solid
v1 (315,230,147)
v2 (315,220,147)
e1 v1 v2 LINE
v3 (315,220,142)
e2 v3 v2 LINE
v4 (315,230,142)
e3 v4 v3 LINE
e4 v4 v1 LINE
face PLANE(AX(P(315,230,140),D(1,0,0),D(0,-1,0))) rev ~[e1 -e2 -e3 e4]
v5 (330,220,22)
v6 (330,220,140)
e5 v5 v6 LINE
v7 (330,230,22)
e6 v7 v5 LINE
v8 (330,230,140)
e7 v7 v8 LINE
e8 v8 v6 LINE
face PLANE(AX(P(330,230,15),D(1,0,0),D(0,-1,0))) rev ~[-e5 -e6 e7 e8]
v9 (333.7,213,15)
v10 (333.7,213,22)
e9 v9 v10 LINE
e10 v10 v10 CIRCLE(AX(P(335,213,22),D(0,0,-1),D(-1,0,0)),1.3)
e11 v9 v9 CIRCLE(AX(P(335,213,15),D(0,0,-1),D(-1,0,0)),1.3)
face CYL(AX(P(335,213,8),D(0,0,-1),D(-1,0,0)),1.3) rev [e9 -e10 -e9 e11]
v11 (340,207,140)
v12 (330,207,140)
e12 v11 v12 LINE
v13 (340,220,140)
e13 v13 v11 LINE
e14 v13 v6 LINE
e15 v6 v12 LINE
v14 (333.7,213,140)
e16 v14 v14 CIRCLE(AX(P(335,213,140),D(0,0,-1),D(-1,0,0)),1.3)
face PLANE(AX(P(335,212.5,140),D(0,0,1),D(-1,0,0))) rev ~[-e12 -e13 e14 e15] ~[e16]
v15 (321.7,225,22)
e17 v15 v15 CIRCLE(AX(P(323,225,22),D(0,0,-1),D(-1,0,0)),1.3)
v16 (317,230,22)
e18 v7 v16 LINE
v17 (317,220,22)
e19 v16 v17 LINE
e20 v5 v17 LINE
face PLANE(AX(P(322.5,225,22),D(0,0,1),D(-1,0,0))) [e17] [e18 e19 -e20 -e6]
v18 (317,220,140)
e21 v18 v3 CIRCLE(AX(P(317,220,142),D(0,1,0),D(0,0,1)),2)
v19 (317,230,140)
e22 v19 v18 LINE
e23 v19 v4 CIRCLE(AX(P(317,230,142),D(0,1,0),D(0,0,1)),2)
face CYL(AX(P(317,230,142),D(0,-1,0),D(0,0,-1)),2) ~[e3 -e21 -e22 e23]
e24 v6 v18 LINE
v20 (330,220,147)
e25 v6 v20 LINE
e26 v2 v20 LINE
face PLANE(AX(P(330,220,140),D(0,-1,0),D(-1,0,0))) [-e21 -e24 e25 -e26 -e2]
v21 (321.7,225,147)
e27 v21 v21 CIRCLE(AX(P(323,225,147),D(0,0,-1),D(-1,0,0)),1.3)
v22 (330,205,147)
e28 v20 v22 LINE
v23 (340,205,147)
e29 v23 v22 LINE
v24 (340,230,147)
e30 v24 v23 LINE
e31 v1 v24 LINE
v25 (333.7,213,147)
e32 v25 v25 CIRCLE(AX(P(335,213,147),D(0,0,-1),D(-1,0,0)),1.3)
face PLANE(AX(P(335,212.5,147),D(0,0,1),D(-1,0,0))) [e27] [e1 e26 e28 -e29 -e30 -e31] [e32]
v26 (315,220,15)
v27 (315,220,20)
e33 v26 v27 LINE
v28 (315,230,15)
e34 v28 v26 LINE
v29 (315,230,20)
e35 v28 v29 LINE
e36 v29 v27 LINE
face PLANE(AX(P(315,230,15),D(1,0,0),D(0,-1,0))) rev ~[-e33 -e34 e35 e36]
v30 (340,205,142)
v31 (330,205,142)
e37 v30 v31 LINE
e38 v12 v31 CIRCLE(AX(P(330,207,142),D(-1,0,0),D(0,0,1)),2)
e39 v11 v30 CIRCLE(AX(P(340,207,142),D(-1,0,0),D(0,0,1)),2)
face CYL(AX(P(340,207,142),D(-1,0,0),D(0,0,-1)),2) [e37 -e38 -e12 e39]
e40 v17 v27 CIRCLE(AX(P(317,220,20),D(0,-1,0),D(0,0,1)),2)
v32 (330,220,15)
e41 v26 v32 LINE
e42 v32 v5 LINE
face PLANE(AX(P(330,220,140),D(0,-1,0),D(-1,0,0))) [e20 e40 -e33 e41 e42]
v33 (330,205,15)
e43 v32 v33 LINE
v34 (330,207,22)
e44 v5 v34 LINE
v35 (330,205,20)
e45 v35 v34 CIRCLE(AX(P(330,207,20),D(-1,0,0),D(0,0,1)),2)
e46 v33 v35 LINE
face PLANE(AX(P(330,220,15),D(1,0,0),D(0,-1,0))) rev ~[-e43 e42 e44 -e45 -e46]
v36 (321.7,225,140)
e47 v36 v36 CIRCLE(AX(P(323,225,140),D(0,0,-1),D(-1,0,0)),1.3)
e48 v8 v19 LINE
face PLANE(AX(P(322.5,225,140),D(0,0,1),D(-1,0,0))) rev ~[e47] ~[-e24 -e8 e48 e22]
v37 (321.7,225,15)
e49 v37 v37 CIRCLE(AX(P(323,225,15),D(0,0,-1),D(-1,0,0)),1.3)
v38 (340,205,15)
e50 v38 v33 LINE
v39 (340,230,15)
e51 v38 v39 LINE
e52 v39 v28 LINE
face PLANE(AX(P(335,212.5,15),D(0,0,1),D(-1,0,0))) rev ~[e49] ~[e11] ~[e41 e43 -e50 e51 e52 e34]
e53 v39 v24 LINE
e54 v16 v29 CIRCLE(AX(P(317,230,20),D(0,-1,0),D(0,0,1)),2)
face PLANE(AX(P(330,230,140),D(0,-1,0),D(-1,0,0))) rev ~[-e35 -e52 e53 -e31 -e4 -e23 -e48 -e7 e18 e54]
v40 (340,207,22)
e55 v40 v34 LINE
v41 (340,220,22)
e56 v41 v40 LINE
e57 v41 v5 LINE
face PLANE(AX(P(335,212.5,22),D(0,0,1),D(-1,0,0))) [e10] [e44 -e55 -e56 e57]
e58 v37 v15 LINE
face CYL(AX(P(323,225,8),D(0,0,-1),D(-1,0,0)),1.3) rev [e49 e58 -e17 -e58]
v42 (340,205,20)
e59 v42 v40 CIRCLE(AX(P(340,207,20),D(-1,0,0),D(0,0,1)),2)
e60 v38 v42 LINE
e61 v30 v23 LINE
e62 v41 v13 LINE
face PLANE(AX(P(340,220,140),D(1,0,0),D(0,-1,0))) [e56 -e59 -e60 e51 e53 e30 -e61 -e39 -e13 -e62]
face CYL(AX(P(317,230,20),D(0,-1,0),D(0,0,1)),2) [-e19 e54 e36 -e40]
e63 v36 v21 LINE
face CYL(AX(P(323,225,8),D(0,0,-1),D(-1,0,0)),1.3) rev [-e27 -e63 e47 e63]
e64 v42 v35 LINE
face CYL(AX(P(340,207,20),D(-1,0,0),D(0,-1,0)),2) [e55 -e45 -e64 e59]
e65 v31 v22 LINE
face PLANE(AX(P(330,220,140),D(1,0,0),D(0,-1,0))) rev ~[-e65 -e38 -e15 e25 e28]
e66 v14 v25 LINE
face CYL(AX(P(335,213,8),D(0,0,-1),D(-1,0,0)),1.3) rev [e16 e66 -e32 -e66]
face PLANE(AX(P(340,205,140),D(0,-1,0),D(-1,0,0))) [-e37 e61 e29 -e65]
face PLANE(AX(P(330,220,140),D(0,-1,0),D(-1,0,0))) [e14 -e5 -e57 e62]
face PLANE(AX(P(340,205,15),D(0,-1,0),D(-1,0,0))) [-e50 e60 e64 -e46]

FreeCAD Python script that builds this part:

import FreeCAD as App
import Part
import Sketcher


def edges_at(feature, points):
    """Names of the edges that pass closest to the given points."""
    edges = feature.Shape.Edges
    near = lambda p: min(range(len(edges)), key=lambda i: edges[i].distToShape(Part.Vertex(*p))[0])
    return sorted({f"Edge{near(p) + 1}" for p in points})

doc = App.newDocument("Part")
body = doc.addObject("PartDesign::Body", "Body")

# Sketch on XY plane
sketch1 = body.newObject("Sketcher::SketchObject", "Sketch")
sketch1.AttachmentSupport = (doc.getObject("XY_Plane"), [""])
sketch1.MapMode = "FlatFace"
sketch1.AttachmentOffset = App.Placement(App.Vector(0, 0, 8), App.Rotation())
sketch1.addGeometry(Part.Circle(App.Vector(5, 17, 0), App.Vector(0, 0, 1), 1.3), False)
sketch1.addConstraint([
    Sketcher.Constraint("Diameter", 0, 2.6),
    Sketcher.Constraint("DistanceX", -1, 1, 0, 3, 5.0),
    Sketcher.Constraint("DistanceY", -1, 1, 0, 3, 17.0),
])
pad1 = body.newObject("PartDesign::Pad", "Pad")
pad1.Profile = sketch1
pad1.Length = 146
body2 = doc.addObject("PartDesign::Body", "Body001")

# Sketch on XY plane
sketch2 = body2.newObject("Sketcher::SketchObject", "Sketch001")
sketch2.AttachmentSupport = (doc.getObject("XY_Plane001"), [""])
sketch2.MapMode = "FlatFace"
sketch2.AttachmentOffset = App.Placement(App.Vector(0, 0, 8), App.Rotation())
sketch2.addGeometry(Part.Circle(App.Vector(17, 5, 0), App.Vector(0, 0, 1), 1.3), False)
sketch2.addConstraint([
    Sketcher.Constraint("Diameter", 0, 2.6),
    Sketcher.Constraint("DistanceX", -1, 1, 0, 3, 17.0),
    Sketcher.Constraint("DistanceY", -1, 1, 0, 3, 5.0),
])
pad2 = body2.newObject("PartDesign::Pad", "Pad001")
pad2.Profile = sketch2
pad2.Length = 146
body3 = doc.addObject("PartDesign::Body", "Body002")

# Sketch on XY plane
sketch3 = body3.newObject("Sketcher::SketchObject", "Sketch002")
sketch3.AttachmentSupport = (doc.getObject("XY_Plane002"), [""])
sketch3.MapMode = "FlatFace"
sketch3.AttachmentOffset = App.Placement(App.Vector(0, 0, 15), App.Rotation())
sketch3.addGeometry([
    Part.LineSegment(App.Vector(0, 10, 0), App.Vector(0, 0, 0)),
    Part.LineSegment(App.Vector(0, 0, 0), App.Vector(10, 0, 0)),
    Part.LineSegment(App.Vector(10, 0, 0), App.Vector(10, 10, 0)),
    Part.LineSegment(App.Vector(10, 10, 0), App.Vector(0, 10, 0)),
], False)
sketch3.addConstraint([
    Sketcher.Constraint("Coincident", 0, 2, 1, 1),
    Sketcher.Constraint("Coincident", 1, 2, 2, 1),
    Sketcher.Constraint("Coincident", 2, 2, 3, 1),
    Sketcher.Constraint("Coincident", 3, 2, 0, 1),
    Sketcher.Constraint("Vertical", 0),
    Sketcher.Constraint("Horizontal", 1),
    Sketcher.Constraint("Vertical", 2),
    Sketcher.Constraint("Horizontal", 3),
    Sketcher.Constraint("Coincident", 0, 2, -1, 1),
    Sketcher.Constraint("Equal", 3, 0),
    Sketcher.Constraint("DistanceX", 1, 1, 1, 2, 10.0),
])
pad3 = body3.newObject("PartDesign::Pad", "Pad002")
pad3.Profile = sketch3
pad3.Length = 132
body4 = doc.addObject("PartDesign::Body", "Body003")

# Sketch on XY plane
sketch4 = body4.newObject("Sketcher::SketchObject", "Sketch003")
sketch4.AttachmentSupport = (doc.getObject("XY_Plane003"), [""])
sketch4.MapMode = "FlatFace"
sketch4.AttachmentOffset = App.Placement(App.Vector(0, 0, 140), App.Rotation())
sketch4.addGeometry([
    Part.LineSegment(App.Vector(10, 10, 0), App.Vector(10, 0, 0)),
    Part.LineSegment(App.Vector(10, 0, 0), App.Vector(25, 0, 0)),
    Part.LineSegment(App.Vector(25, 0, 0), App.Vector(25, 10, 0)),
    Part.LineSegment(App.Vector(25, 10, 0), App.Vector(10, 10, 0)),
], False)
sketch4.addConstraint([
    Sketcher.Constraint("Coincident", 0, 2, 1, 1),
    Sketcher.Constraint("Coincident", 1, 2, 2, 1),
    Sketcher.Constraint("Coincident", 2, 2, 3, 1),
    Sketcher.Constraint("Coincident", 3, 2, 0, 1),
    Sketcher.Constraint("Vertical", 0),
    Sketcher.Constraint("Horizontal", 1),
    Sketcher.Constraint("Vertical", 2),
    Sketcher.Constraint("Horizontal", 3),
    Sketcher.Constraint("PointOnObject", 0, 2, -1),
    Sketcher.Constraint("DistanceX", 1, 1, 1, 2, 15.0),
    Sketcher.Constraint("DistanceY", 0, 2, 0, 1, 10.0),
    Sketcher.Constraint("DistanceX", -1, 1, 0, 2, 10.0),
])
pad4 = body4.newObject("PartDesign::Pad", "Pad003")
pad4.Profile = sketch4
pad4.Length = 7
body5 = doc.addObject("PartDesign::Body", "Body004")

# Sketch on XY plane
sketch5 = body5.newObject("Sketcher::SketchObject", "Sketch004")
sketch5.AttachmentSupport = (doc.getObject("XY_Plane004"), [""])
sketch5.MapMode = "FlatFace"
sketch5.AttachmentOffset = App.Placement(App.Vector(0, 0, 15), App.Rotation())
sketch5.addGeometry([
    Part.LineSegment(App.Vector(0, 25, 0), App.Vector(0, 10, 0)),
    Part.LineSegment(App.Vector(0, 10, 0), App.Vector(10, 10, 0)),
    Part.LineSegment(App.Vector(10, 10, 0), App.Vector(10, 25, 0)),
    Part.LineSegment(App.Vector(10, 25, 0), App.Vector(0, 25, 0)),
], False)
sketch5.addConstraint([
    Sketcher.Constraint("Coincident", 0, 2, 1, 1),
    Sketcher.Constraint("Coincident", 1, 2, 2, 1),
    Sketcher.Constraint("Coincident", 2, 2, 3, 1),
    Sketcher.Constraint("Coincident", 3, 2, 0, 1),
    Sketcher.Constraint("Vertical", 0),
    Sketcher.Constraint("Horizontal", 1),
    Sketcher.Constraint("Vertical", 2),
    Sketcher.Constraint("Horizontal", 3),
    Sketcher.Constraint("PointOnObject", 0, 2, -2),
    Sketcher.Constraint("DistanceX", 1, 1, 1, 2, 10.0),
    Sketcher.Constraint("DistanceY", 0, 2, 0, 1, 15.0),
    Sketcher.Constraint("DistanceY", -1, 1, 0, 2, 10.0),
])
pad5 = body5.newObject("PartDesign::Pad", "Pad004")
pad5.Profile = sketch5
pad5.Length = 7
body6 = doc.addObject("PartDesign::Body", "Body005")

# Sketch on XY plane
sketch6 = body6.newObject("Sketcher::SketchObject", "Sketch005")
sketch6.AttachmentSupport = (doc.getObject("XY_Plane005"), [""])
sketch6.MapMode = "FlatFace"
sketch6.AttachmentOffset = App.Placement(App.Vector(0, 0, 140), App.Rotation())
sketch6.addGeometry([
    Part.LineSegment(App.Vector(0, 25, 0), App.Vector(0, 10, 0)),
    Part.LineSegment(App.Vector(0, 10, 0), App.Vector(10, 10, 0)),
    Part.LineSegment(App.Vector(10, 10, 0), App.Vector(10, 25, 0)),
    Part.LineSegment(App.Vector(10, 25, 0), App.Vector(0, 25, 0)),
], False)
sketch6.addConstraint([
    Sketcher.Constraint("Coincident", 0, 2, 1, 1),
    Sketcher.Constraint("Coincident", 1, 2, 2, 1),
    Sketcher.Constraint("Coincident", 2, 2, 3, 1),
    Sketcher.Constraint("Coincident", 3, 2, 0, 1),
    Sketcher.Constraint("Vertical", 0),
    Sketcher.Constraint("Horizontal", 1),
    Sketcher.Constraint("Vertical", 2),
    Sketcher.Constraint("Horizontal", 3),
    Sketcher.Constraint("PointOnObject", 0, 2, -2),
    Sketcher.Constraint("DistanceX", 1, 1, 1, 2, 10.0),
    Sketcher.Constraint("DistanceY", 0, 2, 0, 1, 15.0),
    Sketcher.Constraint("DistanceY", -1, 1, 0, 2, 10.0),
])
pad6 = body6.newObject("PartDesign::Pad", "Pad005")
pad6.Profile = sketch6
pad6.Length = 7
body7 = doc.addObject("PartDesign::Body", "Body006")

# Sketch on XY plane
sketch7 = body7.newObject("Sketcher::SketchObject", "Sketch006")
sketch7.AttachmentSupport = (doc.getObject("XY_Plane006"), [""])
sketch7.MapMode = "FlatFace"
sketch7.AttachmentOffset = App.Placement(App.Vector(0, 0, 15), App.Rotation())
sketch7.addGeometry([
    Part.LineSegment(App.Vector(10, 10, 0), App.Vector(10, 0, 0)),
    Part.LineSegment(App.Vector(10, 0, 0), App.Vector(25, 0, 0)),
    Part.LineSegment(App.Vector(25, 0, 0), App.Vector(25, 10, 0)),
    Part.LineSegment(App.Vector(25, 10, 0), App.Vector(10, 10, 0)),
], False)
sketch7.addConstraint([
    Sketcher.Constraint("Coincident", 0, 2, 1, 1),
    Sketcher.Constraint("Coincident", 1, 2, 2, 1),
    Sketcher.Constraint("Coincident", 2, 2, 3, 1),
    Sketcher.Constraint("Coincident", 3, 2, 0, 1),
    Sketcher.Constraint("Vertical", 0),
    Sketcher.Constraint("Horizontal", 1),
    Sketcher.Constraint("Vertical", 2),
    Sketcher.Constraint("Horizontal", 3),
    Sketcher.Constraint("PointOnObject", 0, 2, -1),
    Sketcher.Constraint("DistanceX", 1, 1, 1, 2, 15.0),
    Sketcher.Constraint("DistanceY", 0, 2, 0, 1, 10.0),
    Sketcher.Constraint("DistanceX", -1, 1, 0, 2, 10.0),
])
pad7 = body7.newObject("PartDesign::Pad", "Pad006")
pad7.Profile = sketch7
pad7.Length = 7
doc.recompute()

boolean = body7.newObject("PartDesign::Boolean", "Boolean")
boolean.Type = "Fuse"
boolean.addObjects([body3])
doc.recompute()

boolean2 = body7.newObject("PartDesign::Boolean", "Boolean001")
boolean2.Type = "Fuse"
boolean2.addObjects([body4])
doc.recompute()

boolean3 = body7.newObject("PartDesign::Boolean", "Boolean002")
boolean3.Type = "Fuse"
boolean3.addObjects([body5])
doc.recompute()

boolean4 = body7.newObject("PartDesign::Boolean", "Boolean003")
boolean4.Type = "Fuse"
boolean4.addObjects([body6])
doc.recompute()

fillet = body7.newObject("PartDesign::Fillet", "Fillet")
fillet.Base = (boolean4, edges_at(boolean4, [
    (25, 5, 22),
    (25, 5, 140),
    (5, 25, 22),
    (5, 25, 140),
]))
fillet.Radius = 2
doc.recompute()

boolean5 = body7.newObject("PartDesign::Boolean", "Boolean004")
boolean5.Type = "Cut"
boolean5.addObjects([body2])
doc.recompute()

boolean6 = body7.newObject("PartDesign::Boolean", "Boolean005")
boolean6.Type = "Cut"
boolean6.addObjects([body])
body8 = doc.addObject("PartDesign::Body", "Body007")
doc.recompute()

body7.Placement = App.Placement(App.Vector(340, 230, 0), App.Rotation(App.Vector(0, 0, 1), 180))
boolean7 = body8.newObject("PartDesign::Boolean", "Boolean006")
boolean7.Type = "Fuse"
boolean7.addObjects([body7])

doc.recompute()
